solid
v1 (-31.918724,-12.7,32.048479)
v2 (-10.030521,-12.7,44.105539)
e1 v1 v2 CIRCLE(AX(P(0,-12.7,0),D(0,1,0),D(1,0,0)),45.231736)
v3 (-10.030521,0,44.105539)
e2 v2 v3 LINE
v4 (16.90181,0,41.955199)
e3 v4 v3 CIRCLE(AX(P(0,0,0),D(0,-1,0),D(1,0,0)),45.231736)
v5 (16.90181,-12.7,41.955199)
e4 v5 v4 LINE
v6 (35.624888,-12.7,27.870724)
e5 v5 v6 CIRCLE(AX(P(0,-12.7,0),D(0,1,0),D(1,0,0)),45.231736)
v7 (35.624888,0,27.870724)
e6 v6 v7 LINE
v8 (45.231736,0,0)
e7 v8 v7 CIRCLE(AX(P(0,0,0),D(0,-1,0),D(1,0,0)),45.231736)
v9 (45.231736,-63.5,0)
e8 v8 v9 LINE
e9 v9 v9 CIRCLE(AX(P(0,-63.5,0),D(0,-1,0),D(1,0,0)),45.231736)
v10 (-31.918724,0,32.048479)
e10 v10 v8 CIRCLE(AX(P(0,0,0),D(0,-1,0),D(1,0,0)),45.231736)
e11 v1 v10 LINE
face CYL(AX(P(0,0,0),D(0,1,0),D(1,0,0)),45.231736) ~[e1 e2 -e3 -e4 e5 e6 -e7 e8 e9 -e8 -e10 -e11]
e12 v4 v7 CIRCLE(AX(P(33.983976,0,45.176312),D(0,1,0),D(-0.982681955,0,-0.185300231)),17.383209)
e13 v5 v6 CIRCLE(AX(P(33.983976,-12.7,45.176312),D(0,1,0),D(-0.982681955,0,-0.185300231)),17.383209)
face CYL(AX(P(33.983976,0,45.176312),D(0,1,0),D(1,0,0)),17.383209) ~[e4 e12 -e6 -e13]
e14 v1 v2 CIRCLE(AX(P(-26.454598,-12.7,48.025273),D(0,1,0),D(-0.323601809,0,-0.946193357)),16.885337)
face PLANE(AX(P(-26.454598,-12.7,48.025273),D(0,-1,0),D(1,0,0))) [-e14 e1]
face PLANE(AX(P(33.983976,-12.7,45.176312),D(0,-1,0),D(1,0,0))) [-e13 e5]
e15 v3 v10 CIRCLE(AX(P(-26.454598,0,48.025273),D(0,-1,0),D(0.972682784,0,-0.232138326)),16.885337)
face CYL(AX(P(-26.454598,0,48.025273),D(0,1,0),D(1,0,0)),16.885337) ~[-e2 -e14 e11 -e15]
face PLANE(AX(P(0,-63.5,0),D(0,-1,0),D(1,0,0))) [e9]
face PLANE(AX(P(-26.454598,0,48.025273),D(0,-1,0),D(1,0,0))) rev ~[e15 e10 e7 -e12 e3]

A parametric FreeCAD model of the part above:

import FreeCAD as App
import Part
import Sketcher
Q = App.Units.Quantity

doc = App.newDocument("Part")
body = doc.addObject("PartDesign::Body", "Body")

sketch1 = body.newObject("Sketcher::SketchObject", "Sketch")
sketch1.AttachmentSupport = (doc.getObject("XZ_Plane"), [""])
sketch1.MapMode = "FlatFace"
sketch1.addGeometry(Part.Circle(App.Vector(0, 0, 0), App.Vector(0, 0, 1), 45.231736), False)
sketch1.addConstraint(Sketcher.Constraint("Coincident", 0, 3, -1, 1))
sketch1.addConstraint(Sketcher.Constraint("Diameter", 0, 90.463472))
pad1 = body.newObject("PartDesign::Pad", "Pad")
pad1.Profile = sketch1
pad1.Length = Q("2.5 in")

sketch2 = body.newObject("Sketcher::SketchObject", "Sketch001")
sketch2.AttachmentSupport = (doc.getObject("XZ_Plane"), [""])
sketch2.MapMode = "FlatFace"
sketch2.addGeometry(Part.Circle(App.Vector(-26.454598, 48.025273, 0), App.Vector(0, 0, 1), 16.885337), False)
sketch2.addGeometry(Part.Circle(App.Vector(33.983976, 45.176312, 0), App.Vector(0, 0, 1), 17.383209), False)
sketch2.addConstraint(Sketcher.Constraint("Diameter", 1, 34.766418))
sketch2.addConstraint(Sketcher.Constraint("Diameter", 0, 33.770674))
sketch2.addConstraint(Sketcher.Constraint("DistanceX", 0, 3, -1, 1, 26.454598))
sketch2.addConstraint(Sketcher.Constraint("DistanceY", 1, 3, 0, 3, 2.848961))
sketch2.addConstraint(Sketcher.Constraint("DistanceY", -1, 1, 0, 3, 48.025273))
sketch2.addConstraint(Sketcher.Constraint("DistanceX", -1, 1, 1, 3, 33.983976))
pad2 = body.newObject("PartDesign::Pad", "Pad001")
pad2.Profile = sketch2
pad2.Length = Q("0.5 in")

doc.recompute()
